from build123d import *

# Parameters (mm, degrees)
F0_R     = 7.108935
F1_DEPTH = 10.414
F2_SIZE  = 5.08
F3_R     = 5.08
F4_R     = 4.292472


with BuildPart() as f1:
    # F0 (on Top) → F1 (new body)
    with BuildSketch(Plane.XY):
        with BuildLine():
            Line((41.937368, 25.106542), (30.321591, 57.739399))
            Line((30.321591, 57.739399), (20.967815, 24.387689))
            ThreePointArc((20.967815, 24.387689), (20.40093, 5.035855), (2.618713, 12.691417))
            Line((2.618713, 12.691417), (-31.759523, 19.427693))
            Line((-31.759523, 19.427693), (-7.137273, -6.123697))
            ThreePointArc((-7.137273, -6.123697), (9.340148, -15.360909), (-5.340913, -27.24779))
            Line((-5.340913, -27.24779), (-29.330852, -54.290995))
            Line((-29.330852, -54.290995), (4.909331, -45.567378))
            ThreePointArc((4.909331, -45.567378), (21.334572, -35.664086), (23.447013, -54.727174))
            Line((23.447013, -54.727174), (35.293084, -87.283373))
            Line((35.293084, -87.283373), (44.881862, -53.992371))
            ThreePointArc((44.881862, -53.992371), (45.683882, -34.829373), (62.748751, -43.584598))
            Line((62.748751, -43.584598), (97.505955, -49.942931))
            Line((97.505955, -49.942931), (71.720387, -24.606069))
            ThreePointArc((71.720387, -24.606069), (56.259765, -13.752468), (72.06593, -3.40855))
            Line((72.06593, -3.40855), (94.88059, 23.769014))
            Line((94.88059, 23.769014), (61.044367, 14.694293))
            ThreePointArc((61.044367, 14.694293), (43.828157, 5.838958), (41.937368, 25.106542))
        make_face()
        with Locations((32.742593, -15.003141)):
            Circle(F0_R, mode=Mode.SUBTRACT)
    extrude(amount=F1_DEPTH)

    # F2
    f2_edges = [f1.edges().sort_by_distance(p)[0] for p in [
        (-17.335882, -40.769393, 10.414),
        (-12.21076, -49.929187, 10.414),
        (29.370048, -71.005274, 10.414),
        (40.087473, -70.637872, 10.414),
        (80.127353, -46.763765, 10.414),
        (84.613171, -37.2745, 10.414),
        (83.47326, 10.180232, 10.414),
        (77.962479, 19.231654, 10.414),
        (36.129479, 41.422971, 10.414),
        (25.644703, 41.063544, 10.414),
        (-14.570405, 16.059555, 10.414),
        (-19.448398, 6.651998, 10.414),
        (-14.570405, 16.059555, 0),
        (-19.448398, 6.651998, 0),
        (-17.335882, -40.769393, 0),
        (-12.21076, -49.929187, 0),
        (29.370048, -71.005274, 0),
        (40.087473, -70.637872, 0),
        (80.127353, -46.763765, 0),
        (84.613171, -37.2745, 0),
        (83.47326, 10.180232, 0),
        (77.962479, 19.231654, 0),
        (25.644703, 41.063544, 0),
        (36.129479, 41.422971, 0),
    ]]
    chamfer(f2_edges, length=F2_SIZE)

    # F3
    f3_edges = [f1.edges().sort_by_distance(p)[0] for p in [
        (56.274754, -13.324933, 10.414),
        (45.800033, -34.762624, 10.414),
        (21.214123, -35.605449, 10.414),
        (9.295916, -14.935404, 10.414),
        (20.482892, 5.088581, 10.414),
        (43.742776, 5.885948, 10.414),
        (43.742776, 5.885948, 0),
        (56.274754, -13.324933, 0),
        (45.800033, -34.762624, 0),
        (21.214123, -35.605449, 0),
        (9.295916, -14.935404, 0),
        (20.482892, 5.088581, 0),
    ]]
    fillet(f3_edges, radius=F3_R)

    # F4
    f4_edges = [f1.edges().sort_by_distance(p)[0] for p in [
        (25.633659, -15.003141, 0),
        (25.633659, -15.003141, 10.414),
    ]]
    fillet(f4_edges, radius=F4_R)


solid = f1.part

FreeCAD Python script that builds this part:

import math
import FreeCAD as App
import Part
import Sketcher
Q = App.Units.Quantity


def edges_at(feature, points):
    """Names of the edges that pass closest to the given points."""
    edges = feature.Shape.Edges
    near = lambda p: min(range(len(edges)), key=lambda i: edges[i].distToShape(Part.Vertex(*p))[0])
    return sorted({f"Edge{near(p) + 1}" for p in points})

doc = App.newDocument("Part")
body = doc.addObject("PartDesign::Body", "Body")

# Sketch on XY plane
sketch1 = body.newObject("Sketcher::SketchObject", "Sketch")
sketch1.AttachmentSupport = (doc.getObject("XY_Plane"), [""])
sketch1.MapMode = "FlatFace"
sketch1.addGeometry([
    Part.LineSegment(App.Vector(41.937368, 25.106542, 0), App.Vector(30.321591, 57.739399, 0)),  # 0
    Part.LineSegment(App.Vector(30.321591, 57.739399, 0), App.Vector(20.967815, 24.387689, 0)),  # 1
    Part.ArcOfCircle(Part.Circle(App.Vector(14.110455, 14.904346, 0), App.Vector(0, 0, 1), 11.702871), math.radians(-169.100154), math.radians(54.129488)),  # 2
    Part.LineSegment(App.Vector(2.618713, 12.691417, 0), App.Vector(-31.759523, 19.427693, 0)),  # 3
    Part.LineSegment(App.Vector(-31.759523, 19.427693, 0), App.Vector(-7.137273, -6.123697, 0)),  # 4
    Part.ArcOfCircle(Part.Circle(App.Vector(-2.029776, -16.32779, 0), App.Vector(0, 0, 1), 11.410961), math.radians(-106.86823), math.radians(116.58953)),  # 5
    Part.LineSegment(App.Vector(-5.340913, -27.24779, 0), App.Vector(-29.330852, -54.290995, 0)),  # 6
    Part.LineSegment(App.Vector(-29.330852, -54.290995, 0), App.Vector(4.909331, -45.567378, 0)),  # 7
    Part.ArcOfCircle(Part.Circle(App.Vector(16.290868, -45.871582, 0), App.Vector(0, 0, 1), 11.385602), math.radians(-51.058553), math.radians(178.468972)),  # 8
    Part.LineSegment(App.Vector(23.447013, -54.727174, 0), App.Vector(35.293084, -87.283373, 0)),  # 9
    Part.LineSegment(App.Vector(35.293084, -87.283373, 0), App.Vector(44.881862, -53.992371, 0)),  # 10
    Part.ArcOfCircle(Part.Circle(App.Vector(51.414766, -44.667507, 0), App.Vector(0, 0, 1), 11.385601), math.radians(5.457776), math.radians(234.985309)),  # 11
    Part.LineSegment(App.Vector(62.748751, -43.584598, 0), App.Vector(97.505955, -49.942931, 0)),  # 12
    Part.LineSegment(App.Vector(97.505955, -49.942931, 0), App.Vector(71.720387, -24.606069, 0)),  # 13
    Part.ArcOfCircle(Part.Circle(App.Vector(67.66921, -13.938454, 0), App.Vector(0, 0, 1), 11.410961), math.radians(67.337218), math.radians(290.794978)),  # 14
    Part.LineSegment(App.Vector(72.06593, -3.40855, 0), App.Vector(94.88059, 23.769014, 0)),  # 15
    Part.LineSegment(App.Vector(94.88059, 23.769014, 0), App.Vector(61.044367, 14.694293, 0)),  # 16
    Part.ArcOfCircle(Part.Circle(App.Vector(49.428059, 16.115061, 0), App.Vector(0, 0, 1), 11.702871), math.radians(129.797259), math.radians(353.0269)),  # 17
    Part.Circle(App.Vector(32.742593, -15.003141, 0), App.Vector(0, 0, 1), 7.108935),  # 18
], False)
sketch1.addConstraint([
    Sketcher.Constraint("Coincident", 0, 2, 1, 1),
    Sketcher.Constraint("Coincident", 1, 2, 2, 2),
    Sketcher.Constraint("Coincident", 2, 1, 3, 1),
    Sketcher.Constraint("Coincident", 3, 2, 4, 1),
    Sketcher.Constraint("Coincident", 4, 2, 5, 2),
    Sketcher.Constraint("Coincident", 5, 1, 6, 1),
    Sketcher.Constraint("Coincident", 6, 2, 7, 1),
    Sketcher.Constraint("Coincident", 7, 2, 8, 2),
    Sketcher.Constraint("Coincident", 8, 1, 9, 1),
    Sketcher.Constraint("Coincident", 9, 2, 10, 1),
    Sketcher.Constraint("Coincident", 10, 2, 11, 2),
    Sketcher.Constraint("Coincident", 11, 1, 12, 1),
    Sketcher.Constraint("Coincident", 12, 2, 13, 1),
    Sketcher.Constraint("Coincident", 13, 2, 14, 2),
    Sketcher.Constraint("Coincident", 14, 1, 15, 1),
    Sketcher.Constraint("Coincident", 15, 2, 16, 1),
    Sketcher.Constraint("Coincident", 16, 2, 17, 2),
    Sketcher.Constraint("Coincident", 17, 1, 0, 1),
    Sketcher.Constraint("Radius", 8, 11.385602),
    Sketcher.Constraint("Radius", 11, 11.385601),
    Sketcher.Constraint("Diameter", 18, 14.21787),
    Sketcher.Constraint("Radius", 2, 11.702871),
    Sketcher.Constraint("Radius", 5, 11.410961),
    Sketcher.Constraint("Radius", 14, 11.410961),
    Sketcher.Constraint("Radius", 17, 11.702871),
    Sketcher.Constraint("Distance", 7, 35.334001),
    Sketcher.Constraint("Distance", 12, 35.334001),
    Sketcher.Constraint("DistanceY", -1, 1, 0, 2, 57.739399),
    Sketcher.Constraint("DistanceY", 14, 3, 2, 3, 28.8428),
    Sketcher.Constraint("DistanceX", 0, 2, 18, 3, 2.421002),
    Sketcher.Constraint("DistanceY", 5, 1, 5, 3, 10.92),
    Sketcher.Constraint("DistanceY", 6, 2, 4, 2, 48.167298),
    Sketcher.Constraint("DistanceY", 9, 2, 8, 1, 32.556199),
    Sketcher.Constraint("DistanceY", 10, 2, 13, 2, 29.386302),
    Sketcher.Constraint("DistanceX", 0, 2, 15, 2, 64.558999),
    Sketcher.Constraint("DistanceX", 17, 1, 16, 2, 19.106999),
    Sketcher.Constraint("Distance", 6, 36.15041),
    Sketcher.Constraint("Distance", 13, 36.150409),
    Sketcher.Constraint("DistanceY", 5, 3, -1, 1, 16.32779),
    Sketcher.Constraint("DistanceY", 8, 3, -1, 1, 45.871582),
    Sketcher.Constraint("DistanceX", -1, 1, 14, 3, 67.66921),
    Sketcher.Constraint("DistanceX", -1, 1, 17, 3, 49.428059),
    Sketcher.Constraint("DistanceY", -1, 1, 17, 3, 16.115061),
    Sketcher.Constraint("DistanceY", 18, 3, -1, 1, 15.003141),
    Sketcher.Constraint("DistanceX", -1, 1, 0, 2, 30.321591),
    Sketcher.Constraint("DistanceY", -1, 1, 1, 2, 24.387689),
    Sketcher.Constraint("DistanceX", 6, 2, -1, 1, 29.330852),
    Sketcher.Constraint("DistanceX", -1, 1, 7, 2, 4.909331),
    Sketcher.Constraint("DistanceX", -1, 1, 10, 2, 44.881862),
    Sketcher.Constraint("DistanceY", 10, 2, -1, 1, 53.992371),
    Sketcher.Constraint("DistanceX", -1, 1, 11, 1, 62.748751),
    Sketcher.Constraint("DistanceY", 12, 2, -1, 1, 49.942931),
    Sketcher.Constraint("DistanceX", -1, 1, 14, 1, 72.06593),
    Sketcher.Constraint("DistanceY", 14, 1, -1, 1, 3.40855),
    Sketcher.Constraint("DistanceX", 5, 3, 2, 3, 16.140231),
    Sketcher.Constraint("DistanceX", 5, 3, 11, 3, 53.444542),
    Sketcher.Constraint("DistanceX", 2, 1, 2, 3, 11.491742),
    Sketcher.Constraint("DistanceX", 3, 2, 1, 2, 52.727338),
    Sketcher.Constraint("DistanceY", 4, 2, 3, 2, 25.55139),
    Sketcher.Constraint("DistanceX", 7, 2, 8, 1, 18.537682),
    Sketcher.Constraint("DistanceX", 8, 1, 9, 2, 11.846071),
    Sketcher.Constraint("DistanceY", 14, 3, 15, 2, 37.707468),
    Sketcher.Constraint("DistanceY", 16, 2, 15, 2, 9.074721),
])
pad1 = body.newObject("PartDesign::Pad", "Pad")
pad1.Profile = sketch1
pad1.Length = Q("0.41 in")
doc.recompute()

chamfer = body.newObject("PartDesign::Chamfer", "Chamfer")
chamfer.Base = (pad1, edges_at(pad1, [
    (-17.336, -40.769, 10.414),
    (-12.211, -49.929, 10.414),
    (29.37, -71.005, 10.414),
    (40.087, -70.638, 10.414),
    (80.127, -46.764, 10.414),
    (84.613, -37.275, 10.414),
    (83.473, 10.18, 10.414),
    (77.962, 19.232, 10.414),
    (36.129, 41.423, 10.414),
    (25.645, 41.064, 10.414),
    (-14.57, 16.06, 10.414),
    (-19.448, 6.652, 10.414),
    (-14.57, 16.06, 0),
    (-19.448, 6.652, 0),
    (-17.336, -40.769, 0),
    (-12.211, -49.929, 0),
    (29.37, -71.005, 0),
    (40.087, -70.638, 0),
    (80.127, -46.764, 0),
    (84.613, -37.275, 0),
    (83.473, 10.18, 0),
    (77.962, 19.232, 0),
    (25.645, 41.064, 0),
    (36.129, 41.423, 0),
]))
chamfer.Size = Q("0.2 in")
doc.recompute()

fillet = body.newObject("PartDesign::Fillet", "Fillet")
fillet.Base = (chamfer, edges_at(chamfer, [
    (56.275, -13.325, 10.414),
    (45.8, -34.763, 10.414),
    (21.214, -35.605, 10.414),
    (9.296, -14.935, 10.414),
    (20.483, 5.089, 10.414),
    (43.743, 5.886, 10.414),
    (43.743, 5.886, 0),
    (56.275, -13.325, 0),
    (45.8, -34.763, 0),
    (21.214, -35.605, 0),
    (9.296, -14.935, 0),
    (20.483, 5.089, 0),
]))
fillet.Radius = Q("0.2 in")
doc.recompute()

fillet2 = body.newObject("PartDesign::Fillet", "Fillet001")
fillet2.Base = (fillet, edges_at(fillet, [(25.634, -15.003, 0), (25.634, -15.003, 10.414)]))
fillet2.Radius = 4.292472

doc.recompute()
